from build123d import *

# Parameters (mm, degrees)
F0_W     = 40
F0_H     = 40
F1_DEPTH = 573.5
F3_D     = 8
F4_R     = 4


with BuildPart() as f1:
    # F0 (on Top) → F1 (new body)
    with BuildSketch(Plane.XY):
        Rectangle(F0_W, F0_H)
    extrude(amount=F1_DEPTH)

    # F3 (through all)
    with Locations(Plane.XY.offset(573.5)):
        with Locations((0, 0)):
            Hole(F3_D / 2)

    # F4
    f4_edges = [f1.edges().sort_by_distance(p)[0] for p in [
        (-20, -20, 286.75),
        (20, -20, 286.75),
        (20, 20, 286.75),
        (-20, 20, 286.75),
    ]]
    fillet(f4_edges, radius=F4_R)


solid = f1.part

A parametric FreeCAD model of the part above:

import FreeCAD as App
import Part
import Sketcher
Q = App.Units.Quantity


def edges_at(feature, points):
    """Names of the edges that pass closest to the given points."""
    edges = feature.Shape.Edges
    near = lambda p: min(range(len(edges)), key=lambda i: edges[i].distToShape(Part.Vertex(*p))[0])
    return sorted({f"Edge{near(p) + 1}" for p in points})


def add_polygon(sketch, points):
    """Adds a closed chain of lines whose ends are joined by coincident constraints."""
    first, n = sketch.GeometryCount, len(points)
    for a, b in zip(points, points[1:] + points[:1]):
        sketch.addGeometry(Part.LineSegment(App.Vector(*a, 0), App.Vector(*b, 0)), False)
    for i in range(n):
        sketch.addConstraint(Sketcher.Constraint("Coincident", first + i, 2, first + (i + 1) % n, 1))

doc = App.newDocument("Part")
params = doc.addObject("Spreadsheet::Sheet", "Params")
for row, (alias, value) in enumerate([
    ("sketch1_width", "40 mm"),
    ("pad1_length", "573.5 mm"),
    ("sketch2_diameter", "8 mm"),
    ("hole_diameter", "8 mm"),
    ("fillet_radius", "4 mm"),
], start=1):
    params.set(f"A{row}", alias)
    params.set(f"B{row}", "=" + value)
    params.setAlias(f"B{row}", alias)

body = doc.addObject("PartDesign::Body", "Body")

sketch1 = body.newObject("Sketcher::SketchObject", "Sketch")
sketch1.AttachmentSupport = (doc.getObject("XY_Plane"), [""])
sketch1.MapMode = "FlatFace"
add_polygon(sketch1, [(-20, 20), (-20, -20), (20, -20), (20, 20)])
sketch1.addConstraint([
    Sketcher.Constraint("Vertical", 0),
    Sketcher.Constraint("Horizontal", 1),
    Sketcher.Constraint("Vertical", 2),
    Sketcher.Constraint("Horizontal", 3),
    Sketcher.Constraint("Symmetric", 0, 2, 2, 2, -1, 1),
    Sketcher.Constraint("Equal", 3, 0),
    Sketcher.Constraint("DistanceX", 1, 1, 1, 2, Q("40 mm")),
])
sketch1.setExpression("Constraints[10]", "Params.sketch1_width")
pad1 = body.newObject("PartDesign::Pad", "Pad")
pad1.Profile = sketch1
pad1.setExpression("Length", "Params.pad1_length")

sketch2 = body.newObject("Sketcher::SketchObject", "Sketch001")
sketch2.AttachmentSupport = (doc.getObject("XY_Plane"), [""])
sketch2.MapMode = "FlatFace"
sketch2.AttachmentOffset = App.Placement(App.Vector(0, 0, 573.5), App.Rotation())
sketch2.addGeometry(Part.Circle(App.Vector(0, 0, 0), App.Vector(0, 0, 1), 4), False)
sketch2.addConstraint([
    Sketcher.Constraint("Coincident", 0, 3, -1, 1),
    Sketcher.Constraint("Diameter", 0, Q("8 mm")),
])
sketch2.setExpression("Constraints[1]", "Params.sketch2_diameter")
doc.recompute()
hole = body.newObject("PartDesign::Hole", "Hole")
hole.Profile = sketch2
hole.ThreadType = "None"
hole.setExpression("Diameter", "Params.hole_diameter")
hole.DepthType = "ThroughAll"
doc.recompute()

fillet = body.newObject("PartDesign::Fillet", "Fillet")
fillet.Base = (hole, edges_at(hole, [
    (-20, -20, 286.75),
    (20, -20, 286.75),
    (20, 20, 286.75),
    (-20, 20, 286.75),
]))
fillet.setExpression("Radius", "Params.fillet_radius")

doc.recompute()
